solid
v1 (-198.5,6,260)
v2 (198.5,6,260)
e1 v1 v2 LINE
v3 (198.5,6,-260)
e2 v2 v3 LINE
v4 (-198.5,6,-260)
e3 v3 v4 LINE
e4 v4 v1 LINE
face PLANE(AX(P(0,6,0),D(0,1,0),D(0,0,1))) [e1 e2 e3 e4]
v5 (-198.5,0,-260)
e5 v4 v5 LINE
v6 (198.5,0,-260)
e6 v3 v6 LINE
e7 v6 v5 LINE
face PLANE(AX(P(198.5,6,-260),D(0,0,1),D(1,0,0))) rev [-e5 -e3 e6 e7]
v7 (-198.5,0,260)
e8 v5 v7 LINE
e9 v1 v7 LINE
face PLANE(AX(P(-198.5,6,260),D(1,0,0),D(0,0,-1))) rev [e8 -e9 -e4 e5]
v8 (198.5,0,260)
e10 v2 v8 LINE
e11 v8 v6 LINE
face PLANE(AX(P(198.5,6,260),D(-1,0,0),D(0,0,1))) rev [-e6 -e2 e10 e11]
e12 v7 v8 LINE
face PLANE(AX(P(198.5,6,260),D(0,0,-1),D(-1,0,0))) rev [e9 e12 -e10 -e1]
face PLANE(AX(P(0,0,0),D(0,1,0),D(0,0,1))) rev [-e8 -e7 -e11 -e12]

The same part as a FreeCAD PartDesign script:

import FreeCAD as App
import Part
import Sketcher
from FreeCAD import Vector


def add_polygon(sketch, points):
    """Adds a closed chain of lines whose ends are joined by coincident constraints."""
    first, n = sketch.GeometryCount, len(points)
    for a, b in zip(points, points[1:] + points[:1]):
        sketch.addGeometry(Part.LineSegment(App.Vector(*a, 0), App.Vector(*b, 0)), False)
    for i in range(n):
        sketch.addConstraint(Sketcher.Constraint("Coincident", first + i, 2, first + (i + 1) % n, 1))

doc = App.newDocument("Part")
body = doc.addObject("PartDesign::Body", "Body")

# Sketch on XZ plane
sketch1 = doc.addObject("Sketcher::SketchObject", "Sketch")
body.addObject(sketch1)
sketch1.AttachmentSupport = (doc.XZ_Plane, [""])
sketch1.MapMode = "FlatFace"
add_polygon(sketch1, [(-198, -260), (-198, 260), (198, 260), (198, -260)])  # lines 0-3
sketch1.addConstraint([
    Sketcher.Constraint("Vertical", 0),
    Sketcher.Constraint("Horizontal", 1),
    Sketcher.Constraint("Vertical", 2),
    Sketcher.Constraint("Horizontal", 3),
    Sketcher.Constraint("Symmetric", 0, 2, 2, 2, -1, 1),
    Sketcher.Constraint("DistanceX", 1, 1, 1, 2, 397.0),
    Sketcher.Constraint("DistanceY", 0, 1, 0, 2, 520.0),
])
pad1 = doc.addObject("PartDesign::Pad", "Pad")
body.addObject(pad1)
pad1.Profile = sketch1
pad1.Length = 6
pad1.Reversed = True

doc.recompute()
